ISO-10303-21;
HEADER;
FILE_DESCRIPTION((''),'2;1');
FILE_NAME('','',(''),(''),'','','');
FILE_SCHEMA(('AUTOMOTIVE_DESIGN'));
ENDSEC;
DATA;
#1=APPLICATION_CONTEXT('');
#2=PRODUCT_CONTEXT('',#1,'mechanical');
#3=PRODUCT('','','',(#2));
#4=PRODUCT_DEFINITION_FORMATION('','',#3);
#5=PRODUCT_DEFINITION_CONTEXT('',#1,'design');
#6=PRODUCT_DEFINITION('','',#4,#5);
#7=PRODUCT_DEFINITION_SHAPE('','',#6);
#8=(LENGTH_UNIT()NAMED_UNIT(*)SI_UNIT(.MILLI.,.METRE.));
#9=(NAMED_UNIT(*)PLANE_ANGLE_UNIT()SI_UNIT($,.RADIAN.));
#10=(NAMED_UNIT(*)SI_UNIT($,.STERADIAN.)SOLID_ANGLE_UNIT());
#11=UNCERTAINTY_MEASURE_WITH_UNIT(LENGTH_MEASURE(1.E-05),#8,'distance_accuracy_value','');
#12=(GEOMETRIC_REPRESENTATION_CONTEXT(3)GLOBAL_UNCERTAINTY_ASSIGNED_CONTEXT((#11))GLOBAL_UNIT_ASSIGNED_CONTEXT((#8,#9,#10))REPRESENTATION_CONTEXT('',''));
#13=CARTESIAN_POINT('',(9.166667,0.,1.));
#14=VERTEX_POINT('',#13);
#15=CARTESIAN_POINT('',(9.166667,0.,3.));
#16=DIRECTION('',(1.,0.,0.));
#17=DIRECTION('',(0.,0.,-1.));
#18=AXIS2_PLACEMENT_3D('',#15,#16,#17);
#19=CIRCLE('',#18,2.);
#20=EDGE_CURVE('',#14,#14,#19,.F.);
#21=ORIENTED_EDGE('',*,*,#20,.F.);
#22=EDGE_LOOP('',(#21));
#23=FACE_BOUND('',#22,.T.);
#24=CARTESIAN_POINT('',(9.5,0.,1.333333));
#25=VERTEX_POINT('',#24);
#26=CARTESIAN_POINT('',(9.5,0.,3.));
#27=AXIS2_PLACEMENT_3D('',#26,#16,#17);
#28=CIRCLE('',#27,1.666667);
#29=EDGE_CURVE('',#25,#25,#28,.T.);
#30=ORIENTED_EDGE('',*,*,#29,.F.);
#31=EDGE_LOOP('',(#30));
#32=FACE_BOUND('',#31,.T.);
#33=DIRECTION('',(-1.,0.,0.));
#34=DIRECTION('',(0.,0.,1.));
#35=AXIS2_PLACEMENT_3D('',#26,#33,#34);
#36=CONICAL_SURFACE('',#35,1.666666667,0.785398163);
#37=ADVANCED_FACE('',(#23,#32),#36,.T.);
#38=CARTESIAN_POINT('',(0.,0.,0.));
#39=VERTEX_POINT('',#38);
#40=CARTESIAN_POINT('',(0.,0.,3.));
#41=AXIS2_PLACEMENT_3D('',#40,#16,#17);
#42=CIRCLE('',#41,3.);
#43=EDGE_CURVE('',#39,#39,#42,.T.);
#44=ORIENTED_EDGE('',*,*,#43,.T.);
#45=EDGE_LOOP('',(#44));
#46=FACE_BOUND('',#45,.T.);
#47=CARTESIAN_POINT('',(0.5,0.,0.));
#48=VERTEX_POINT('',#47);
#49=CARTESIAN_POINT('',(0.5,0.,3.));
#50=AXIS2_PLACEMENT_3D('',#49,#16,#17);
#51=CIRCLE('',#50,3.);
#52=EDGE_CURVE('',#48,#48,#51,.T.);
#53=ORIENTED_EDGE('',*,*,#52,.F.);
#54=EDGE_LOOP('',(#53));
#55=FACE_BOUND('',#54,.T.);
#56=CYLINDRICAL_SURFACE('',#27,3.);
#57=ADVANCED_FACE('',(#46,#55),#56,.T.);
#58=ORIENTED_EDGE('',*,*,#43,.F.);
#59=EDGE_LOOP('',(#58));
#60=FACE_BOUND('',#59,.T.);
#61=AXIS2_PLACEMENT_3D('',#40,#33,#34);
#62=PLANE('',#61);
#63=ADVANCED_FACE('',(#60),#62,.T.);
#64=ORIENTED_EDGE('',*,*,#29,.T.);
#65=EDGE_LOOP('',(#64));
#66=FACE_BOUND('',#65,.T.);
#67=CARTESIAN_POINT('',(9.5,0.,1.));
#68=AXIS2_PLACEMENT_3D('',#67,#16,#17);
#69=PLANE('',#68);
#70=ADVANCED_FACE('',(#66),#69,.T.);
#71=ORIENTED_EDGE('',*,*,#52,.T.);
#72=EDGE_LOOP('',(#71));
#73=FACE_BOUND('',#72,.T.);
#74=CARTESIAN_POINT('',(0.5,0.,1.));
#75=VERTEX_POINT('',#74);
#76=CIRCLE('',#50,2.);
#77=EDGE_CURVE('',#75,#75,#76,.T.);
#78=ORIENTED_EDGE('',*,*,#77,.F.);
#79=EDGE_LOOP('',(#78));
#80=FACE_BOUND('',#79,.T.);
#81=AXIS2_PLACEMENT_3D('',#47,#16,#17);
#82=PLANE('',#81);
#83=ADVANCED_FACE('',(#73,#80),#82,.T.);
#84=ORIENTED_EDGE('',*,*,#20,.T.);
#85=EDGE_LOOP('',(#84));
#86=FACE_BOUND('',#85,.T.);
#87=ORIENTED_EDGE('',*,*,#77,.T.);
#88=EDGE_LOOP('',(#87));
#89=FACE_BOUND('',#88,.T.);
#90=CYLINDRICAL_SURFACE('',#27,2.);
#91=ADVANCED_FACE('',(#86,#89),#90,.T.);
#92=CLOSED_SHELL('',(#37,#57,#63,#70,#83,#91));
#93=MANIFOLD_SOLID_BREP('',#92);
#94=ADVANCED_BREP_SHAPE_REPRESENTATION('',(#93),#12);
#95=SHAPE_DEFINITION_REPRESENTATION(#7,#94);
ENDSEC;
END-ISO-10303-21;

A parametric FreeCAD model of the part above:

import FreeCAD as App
import Part
import Sketcher


def edges_at(feature, points):
    """Names of the edges that pass closest to the given points."""
    edges = feature.Shape.Edges
    near = lambda p: min(range(len(edges)), key=lambda i: edges[i].distToShape(Part.Vertex(*p))[0])
    return sorted({f"Edge{near(p) + 1}" for p in points})


def add_polygon(sketch, points):
    """Adds a closed chain of lines whose ends are joined by coincident constraints."""
    first, n = sketch.GeometryCount, len(points)
    for a, b in zip(points, points[1:] + points[:1]):
        sketch.addGeometry(Part.LineSegment(App.Vector(*a, 0), App.Vector(*b, 0)), False)
    for i in range(n):
        sketch.addConstraint(Sketcher.Constraint("Coincident", first + i, 2, first + (i + 1) % n, 1))

doc = App.newDocument("Part")
body = doc.addObject("PartDesign::Body", "Body")

# Sketch on XZ plane
sketch1 = body.newObject("Sketcher::SketchObject", "Sketch")
sketch1.AttachmentSupport = (doc.getObject("XZ_Plane"), [""])
sketch1.MapMode = "FlatFace"
add_polygon(sketch1, [(0.5, 0), (0, 0), (0, 3), (9.5, 3), (9.5, 1), (0.5, 1)])  # lines 0-5
sketch1.addGeometry(Part.LineSegment(App.Vector(9.5, 3, 0), App.Vector(0, 3, 0)), True)  # axis
sketch1.addConstraint(Sketcher.Constraint("Horizontal", 0))
sketch1.addConstraint(Sketcher.Constraint("Vertical", 1))
sketch1.addConstraint(Sketcher.Constraint("Horizontal", 2))
sketch1.addConstraint(Sketcher.Constraint("Vertical", 3))
sketch1.addConstraint(Sketcher.Constraint("Horizontal", 4))
sketch1.addConstraint(Sketcher.Constraint("Vertical", 5))
sketch1.addConstraint(Sketcher.Constraint("Horizontal", 6))
sketch1.addConstraint(Sketcher.Constraint("Coincident", 0, 2, -1, 1))
sketch1.addConstraint(Sketcher.Constraint("Coincident", 6, 1, 2, 2))
sketch1.addConstraint(Sketcher.Constraint("PointOnObject", 6, 2, -2))
sketch1.addConstraint(Sketcher.Constraint("DistanceX", 4, 2, 4, 1, 9.0))
sketch1.addConstraint(Sketcher.Constraint("DistanceY", 1, 1, 1, 2, 3.0))
sketch1.addConstraint(Sketcher.Constraint("DistanceY", 3, 2, 3, 1, 2.0))
sketch1.addConstraint(Sketcher.Constraint("DistanceX", 0, 2, 0, 1, 0.5))
revolution = body.newObject("PartDesign::Revolution", "Revolution")
revolution.Profile = sketch1
revolution.ReferenceAxis = (sketch1, ["Axis0"])
revolution.Angle = 360
doc.recompute()

chamfer = body.newObject("PartDesign::Chamfer", "Chamfer")
chamfer.Base = (revolution, edges_at(revolution, [(9.5, 0, 5)]))
chamfer.Size = 0.333333

doc.recompute()
